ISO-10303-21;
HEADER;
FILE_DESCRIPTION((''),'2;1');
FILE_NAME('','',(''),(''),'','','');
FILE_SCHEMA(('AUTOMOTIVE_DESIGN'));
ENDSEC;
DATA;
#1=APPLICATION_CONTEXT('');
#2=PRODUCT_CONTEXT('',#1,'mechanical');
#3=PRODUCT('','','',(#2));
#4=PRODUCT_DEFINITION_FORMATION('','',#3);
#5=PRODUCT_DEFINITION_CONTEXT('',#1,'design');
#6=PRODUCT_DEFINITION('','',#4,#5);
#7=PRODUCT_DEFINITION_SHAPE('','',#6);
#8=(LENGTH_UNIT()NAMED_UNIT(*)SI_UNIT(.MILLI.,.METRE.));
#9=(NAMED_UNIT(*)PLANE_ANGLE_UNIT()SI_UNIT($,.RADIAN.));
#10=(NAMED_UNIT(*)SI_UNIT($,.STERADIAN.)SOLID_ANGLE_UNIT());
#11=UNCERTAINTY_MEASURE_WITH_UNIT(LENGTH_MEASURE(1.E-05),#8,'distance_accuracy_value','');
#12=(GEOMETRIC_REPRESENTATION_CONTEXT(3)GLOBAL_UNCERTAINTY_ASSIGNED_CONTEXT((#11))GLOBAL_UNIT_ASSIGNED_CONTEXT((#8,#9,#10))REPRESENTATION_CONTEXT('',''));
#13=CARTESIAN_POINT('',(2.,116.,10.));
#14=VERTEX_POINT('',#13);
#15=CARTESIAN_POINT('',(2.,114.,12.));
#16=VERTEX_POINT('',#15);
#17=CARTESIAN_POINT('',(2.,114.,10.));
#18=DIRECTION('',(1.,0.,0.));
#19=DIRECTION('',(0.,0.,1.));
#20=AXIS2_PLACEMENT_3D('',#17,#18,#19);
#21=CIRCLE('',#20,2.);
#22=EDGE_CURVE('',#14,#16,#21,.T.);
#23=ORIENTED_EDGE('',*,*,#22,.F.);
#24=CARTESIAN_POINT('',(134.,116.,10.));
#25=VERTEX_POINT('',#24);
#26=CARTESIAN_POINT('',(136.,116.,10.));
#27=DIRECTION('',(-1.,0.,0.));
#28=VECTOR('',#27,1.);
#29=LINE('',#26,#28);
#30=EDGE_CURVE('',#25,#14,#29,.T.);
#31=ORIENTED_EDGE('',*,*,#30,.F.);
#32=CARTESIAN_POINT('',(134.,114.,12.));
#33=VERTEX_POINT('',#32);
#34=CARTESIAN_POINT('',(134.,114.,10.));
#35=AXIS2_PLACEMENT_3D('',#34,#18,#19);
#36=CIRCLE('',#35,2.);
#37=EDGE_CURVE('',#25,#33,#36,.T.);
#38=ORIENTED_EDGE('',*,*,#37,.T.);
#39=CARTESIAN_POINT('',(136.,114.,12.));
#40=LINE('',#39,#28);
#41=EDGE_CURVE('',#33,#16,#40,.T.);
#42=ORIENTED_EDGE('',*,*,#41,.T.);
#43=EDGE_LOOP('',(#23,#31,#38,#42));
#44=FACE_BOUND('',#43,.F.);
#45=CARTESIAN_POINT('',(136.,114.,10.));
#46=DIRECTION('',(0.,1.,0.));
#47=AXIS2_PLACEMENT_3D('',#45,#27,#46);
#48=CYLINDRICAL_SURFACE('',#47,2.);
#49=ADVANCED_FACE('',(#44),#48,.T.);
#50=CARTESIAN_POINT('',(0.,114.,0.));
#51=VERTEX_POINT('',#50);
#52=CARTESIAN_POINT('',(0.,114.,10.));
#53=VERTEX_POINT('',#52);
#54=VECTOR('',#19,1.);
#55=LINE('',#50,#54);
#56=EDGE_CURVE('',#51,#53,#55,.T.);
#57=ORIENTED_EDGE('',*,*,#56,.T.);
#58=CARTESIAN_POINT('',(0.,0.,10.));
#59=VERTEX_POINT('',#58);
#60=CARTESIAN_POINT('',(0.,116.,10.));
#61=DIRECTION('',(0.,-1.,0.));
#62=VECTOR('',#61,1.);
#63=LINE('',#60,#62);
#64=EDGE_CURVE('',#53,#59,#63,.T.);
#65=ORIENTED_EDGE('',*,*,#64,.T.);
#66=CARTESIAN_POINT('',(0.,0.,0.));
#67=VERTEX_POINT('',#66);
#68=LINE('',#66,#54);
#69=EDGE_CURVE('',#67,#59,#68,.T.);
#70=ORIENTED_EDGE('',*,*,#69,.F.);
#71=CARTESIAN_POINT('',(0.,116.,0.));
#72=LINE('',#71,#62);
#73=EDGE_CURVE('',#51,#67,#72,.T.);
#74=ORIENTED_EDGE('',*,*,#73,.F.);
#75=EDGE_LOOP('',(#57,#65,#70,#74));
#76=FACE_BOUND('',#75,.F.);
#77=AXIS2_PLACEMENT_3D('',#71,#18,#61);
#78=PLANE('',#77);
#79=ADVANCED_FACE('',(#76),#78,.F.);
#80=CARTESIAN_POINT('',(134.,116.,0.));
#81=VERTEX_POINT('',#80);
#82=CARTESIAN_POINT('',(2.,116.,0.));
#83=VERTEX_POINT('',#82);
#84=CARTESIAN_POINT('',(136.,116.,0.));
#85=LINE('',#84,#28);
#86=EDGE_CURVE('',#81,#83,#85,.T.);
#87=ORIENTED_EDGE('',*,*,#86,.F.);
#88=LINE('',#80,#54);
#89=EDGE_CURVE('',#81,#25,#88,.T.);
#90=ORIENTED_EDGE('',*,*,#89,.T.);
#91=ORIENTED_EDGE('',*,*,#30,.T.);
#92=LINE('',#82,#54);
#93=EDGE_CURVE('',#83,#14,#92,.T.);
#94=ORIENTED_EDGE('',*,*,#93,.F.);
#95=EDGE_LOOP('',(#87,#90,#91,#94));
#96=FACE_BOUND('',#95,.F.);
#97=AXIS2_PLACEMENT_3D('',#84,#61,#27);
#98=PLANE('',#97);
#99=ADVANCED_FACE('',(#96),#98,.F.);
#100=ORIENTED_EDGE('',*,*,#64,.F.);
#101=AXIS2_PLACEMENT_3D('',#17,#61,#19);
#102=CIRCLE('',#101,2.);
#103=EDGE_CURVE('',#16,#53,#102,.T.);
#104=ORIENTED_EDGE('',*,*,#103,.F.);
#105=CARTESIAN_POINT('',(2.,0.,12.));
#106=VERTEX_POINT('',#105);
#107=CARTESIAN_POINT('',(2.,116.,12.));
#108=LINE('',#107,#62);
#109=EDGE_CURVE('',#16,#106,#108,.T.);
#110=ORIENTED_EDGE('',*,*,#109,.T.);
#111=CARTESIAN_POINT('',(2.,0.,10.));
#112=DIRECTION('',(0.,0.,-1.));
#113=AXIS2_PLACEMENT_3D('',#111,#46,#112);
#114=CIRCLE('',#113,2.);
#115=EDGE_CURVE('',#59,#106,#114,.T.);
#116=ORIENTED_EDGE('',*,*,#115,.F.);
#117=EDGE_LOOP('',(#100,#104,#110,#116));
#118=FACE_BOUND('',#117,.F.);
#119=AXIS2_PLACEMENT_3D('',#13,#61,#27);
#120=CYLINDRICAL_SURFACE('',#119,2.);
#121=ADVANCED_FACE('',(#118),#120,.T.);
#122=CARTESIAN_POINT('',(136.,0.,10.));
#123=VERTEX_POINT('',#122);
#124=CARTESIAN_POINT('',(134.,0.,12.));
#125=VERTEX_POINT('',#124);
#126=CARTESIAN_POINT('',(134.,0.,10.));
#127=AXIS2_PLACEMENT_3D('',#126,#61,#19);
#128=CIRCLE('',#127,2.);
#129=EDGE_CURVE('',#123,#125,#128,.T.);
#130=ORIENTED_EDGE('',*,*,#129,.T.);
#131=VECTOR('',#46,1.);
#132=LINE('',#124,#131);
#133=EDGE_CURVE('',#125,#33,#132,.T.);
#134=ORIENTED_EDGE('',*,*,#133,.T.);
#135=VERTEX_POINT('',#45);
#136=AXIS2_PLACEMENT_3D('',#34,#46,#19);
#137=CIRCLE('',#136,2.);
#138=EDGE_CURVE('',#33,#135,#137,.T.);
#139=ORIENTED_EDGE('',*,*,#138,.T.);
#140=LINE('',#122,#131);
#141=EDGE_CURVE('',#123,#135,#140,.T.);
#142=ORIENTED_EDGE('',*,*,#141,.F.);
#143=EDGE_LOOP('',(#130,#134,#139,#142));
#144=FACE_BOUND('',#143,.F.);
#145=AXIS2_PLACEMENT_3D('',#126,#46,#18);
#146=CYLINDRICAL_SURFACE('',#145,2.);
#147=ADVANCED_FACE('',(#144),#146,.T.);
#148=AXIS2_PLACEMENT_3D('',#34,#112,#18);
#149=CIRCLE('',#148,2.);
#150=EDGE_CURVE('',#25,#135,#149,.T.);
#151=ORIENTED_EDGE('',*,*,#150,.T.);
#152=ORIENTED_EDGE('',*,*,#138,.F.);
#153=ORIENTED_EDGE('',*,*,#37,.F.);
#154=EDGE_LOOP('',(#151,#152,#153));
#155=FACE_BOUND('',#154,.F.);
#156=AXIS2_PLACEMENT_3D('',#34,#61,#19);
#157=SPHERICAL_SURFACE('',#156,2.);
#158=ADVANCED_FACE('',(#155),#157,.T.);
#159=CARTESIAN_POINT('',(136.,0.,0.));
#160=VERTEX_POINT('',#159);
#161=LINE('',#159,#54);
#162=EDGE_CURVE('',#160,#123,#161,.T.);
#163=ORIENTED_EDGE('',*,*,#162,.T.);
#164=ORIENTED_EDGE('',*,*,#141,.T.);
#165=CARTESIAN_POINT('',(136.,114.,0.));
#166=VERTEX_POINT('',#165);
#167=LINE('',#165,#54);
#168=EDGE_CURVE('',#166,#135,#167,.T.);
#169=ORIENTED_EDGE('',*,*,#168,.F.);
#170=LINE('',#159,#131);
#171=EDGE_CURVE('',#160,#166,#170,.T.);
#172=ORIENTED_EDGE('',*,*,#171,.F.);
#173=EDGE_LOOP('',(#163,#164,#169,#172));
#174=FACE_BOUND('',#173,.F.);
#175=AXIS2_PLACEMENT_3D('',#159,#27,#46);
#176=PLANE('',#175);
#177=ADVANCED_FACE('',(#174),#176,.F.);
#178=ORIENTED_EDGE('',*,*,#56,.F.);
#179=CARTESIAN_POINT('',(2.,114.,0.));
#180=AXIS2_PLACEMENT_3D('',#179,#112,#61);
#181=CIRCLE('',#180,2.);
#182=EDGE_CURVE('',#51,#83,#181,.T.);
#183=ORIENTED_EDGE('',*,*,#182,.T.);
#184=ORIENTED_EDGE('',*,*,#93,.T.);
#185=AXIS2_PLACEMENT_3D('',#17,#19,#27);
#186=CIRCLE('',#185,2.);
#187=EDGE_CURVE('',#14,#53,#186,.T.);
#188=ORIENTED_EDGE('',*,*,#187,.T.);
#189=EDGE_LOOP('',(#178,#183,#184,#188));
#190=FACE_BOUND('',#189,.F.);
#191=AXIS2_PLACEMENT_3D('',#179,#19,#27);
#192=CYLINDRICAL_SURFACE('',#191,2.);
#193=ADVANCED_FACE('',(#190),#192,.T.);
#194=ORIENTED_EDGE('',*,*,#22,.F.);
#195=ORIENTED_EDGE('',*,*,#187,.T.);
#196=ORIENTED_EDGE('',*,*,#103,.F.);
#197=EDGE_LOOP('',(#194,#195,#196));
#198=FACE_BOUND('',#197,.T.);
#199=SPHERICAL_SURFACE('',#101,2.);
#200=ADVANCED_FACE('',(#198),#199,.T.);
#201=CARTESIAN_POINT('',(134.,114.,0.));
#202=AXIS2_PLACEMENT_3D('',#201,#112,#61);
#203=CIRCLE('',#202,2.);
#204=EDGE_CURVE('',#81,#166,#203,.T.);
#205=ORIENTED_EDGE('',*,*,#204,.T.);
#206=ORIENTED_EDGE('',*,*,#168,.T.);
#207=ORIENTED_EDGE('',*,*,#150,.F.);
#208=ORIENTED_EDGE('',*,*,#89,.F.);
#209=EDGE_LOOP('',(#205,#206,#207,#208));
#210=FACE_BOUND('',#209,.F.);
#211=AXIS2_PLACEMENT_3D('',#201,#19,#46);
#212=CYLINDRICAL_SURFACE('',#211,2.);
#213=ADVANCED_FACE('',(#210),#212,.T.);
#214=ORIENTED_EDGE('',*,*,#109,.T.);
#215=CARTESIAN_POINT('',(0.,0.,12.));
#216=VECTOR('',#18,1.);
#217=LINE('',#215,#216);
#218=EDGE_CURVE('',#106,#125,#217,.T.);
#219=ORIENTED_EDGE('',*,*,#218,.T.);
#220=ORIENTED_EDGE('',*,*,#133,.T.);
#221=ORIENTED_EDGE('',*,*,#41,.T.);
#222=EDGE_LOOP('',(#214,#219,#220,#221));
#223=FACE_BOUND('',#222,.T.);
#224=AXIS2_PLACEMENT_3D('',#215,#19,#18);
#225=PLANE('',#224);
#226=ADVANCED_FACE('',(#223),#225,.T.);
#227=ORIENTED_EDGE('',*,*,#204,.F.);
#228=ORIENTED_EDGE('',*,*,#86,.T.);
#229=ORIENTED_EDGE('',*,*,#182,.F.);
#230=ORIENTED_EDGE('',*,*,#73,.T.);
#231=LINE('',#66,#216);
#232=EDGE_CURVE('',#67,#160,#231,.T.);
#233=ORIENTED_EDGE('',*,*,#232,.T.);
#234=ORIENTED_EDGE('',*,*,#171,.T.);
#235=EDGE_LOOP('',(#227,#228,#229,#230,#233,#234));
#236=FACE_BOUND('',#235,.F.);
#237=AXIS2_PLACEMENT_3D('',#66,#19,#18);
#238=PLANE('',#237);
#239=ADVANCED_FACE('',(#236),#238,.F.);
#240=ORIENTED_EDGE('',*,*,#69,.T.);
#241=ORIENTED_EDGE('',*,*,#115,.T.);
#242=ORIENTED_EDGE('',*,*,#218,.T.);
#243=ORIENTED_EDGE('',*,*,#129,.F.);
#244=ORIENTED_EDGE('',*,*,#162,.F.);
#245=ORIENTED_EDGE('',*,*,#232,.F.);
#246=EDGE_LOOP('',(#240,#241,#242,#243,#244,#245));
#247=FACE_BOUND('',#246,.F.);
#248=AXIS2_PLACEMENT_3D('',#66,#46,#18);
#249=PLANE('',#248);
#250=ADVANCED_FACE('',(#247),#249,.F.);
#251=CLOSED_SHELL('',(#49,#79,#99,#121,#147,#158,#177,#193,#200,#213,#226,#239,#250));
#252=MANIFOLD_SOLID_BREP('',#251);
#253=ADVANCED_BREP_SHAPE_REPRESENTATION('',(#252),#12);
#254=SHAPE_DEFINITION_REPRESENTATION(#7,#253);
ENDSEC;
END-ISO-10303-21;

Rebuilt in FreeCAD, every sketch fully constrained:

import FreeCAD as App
import Part
import Sketcher


def edges_at(feature, points):
    """Names of the edges that pass closest to the given points."""
    edges = feature.Shape.Edges
    near = lambda p: min(range(len(edges)), key=lambda i: edges[i].distToShape(Part.Vertex(*p))[0])
    return sorted({f"Edge{near(p) + 1}" for p in points})


def add_polygon(sketch, points):
    """Adds a closed chain of lines whose ends are joined by coincident constraints."""
    first, n = sketch.GeometryCount, len(points)
    for a, b in zip(points, points[1:] + points[:1]):
        sketch.addGeometry(Part.LineSegment(App.Vector(*a, 0), App.Vector(*b, 0)), False)
    for i in range(n):
        sketch.addConstraint(Sketcher.Constraint("Coincident", first + i, 2, first + (i + 1) % n, 1))

doc = App.newDocument("Part")
body = doc.addObject("PartDesign::Body", "Body")

sketch1 = body.newObject("Sketcher::SketchObject", "Sketch")
sketch1.AttachmentSupport = (doc.getObject("XY_Plane"), [""])
sketch1.MapMode = "FlatFace"
add_polygon(sketch1, [(0, 116), (0, 0), (136, 0), (136, 116)])
sketch1.addConstraint([
    Sketcher.Constraint("Vertical", 0),
    Sketcher.Constraint("Horizontal", 1),
    Sketcher.Constraint("Vertical", 2),
    Sketcher.Constraint("Horizontal", 3),
    Sketcher.Constraint("Coincident", 0, 2, -1, 1),
    Sketcher.Constraint("DistanceX", 1, 1, 1, 2, 136.0),
    Sketcher.Constraint("DistanceY", 0, 2, 0, 1, 116.0),
])
pad1 = body.newObject("PartDesign::Pad", "Pad")
pad1.Profile = sketch1
pad1.Length = 12
doc.recompute()

fillet = body.newObject("PartDesign::Fillet", "Fillet")
fillet.Base = (pad1, edges_at(pad1, [
    (0, 58, 12),
    (136, 58, 12),
    (68, 116, 12),
    (136, 116, 6),
    (0, 116, 6),
]))
fillet.Radius = 2

doc.recompute()
